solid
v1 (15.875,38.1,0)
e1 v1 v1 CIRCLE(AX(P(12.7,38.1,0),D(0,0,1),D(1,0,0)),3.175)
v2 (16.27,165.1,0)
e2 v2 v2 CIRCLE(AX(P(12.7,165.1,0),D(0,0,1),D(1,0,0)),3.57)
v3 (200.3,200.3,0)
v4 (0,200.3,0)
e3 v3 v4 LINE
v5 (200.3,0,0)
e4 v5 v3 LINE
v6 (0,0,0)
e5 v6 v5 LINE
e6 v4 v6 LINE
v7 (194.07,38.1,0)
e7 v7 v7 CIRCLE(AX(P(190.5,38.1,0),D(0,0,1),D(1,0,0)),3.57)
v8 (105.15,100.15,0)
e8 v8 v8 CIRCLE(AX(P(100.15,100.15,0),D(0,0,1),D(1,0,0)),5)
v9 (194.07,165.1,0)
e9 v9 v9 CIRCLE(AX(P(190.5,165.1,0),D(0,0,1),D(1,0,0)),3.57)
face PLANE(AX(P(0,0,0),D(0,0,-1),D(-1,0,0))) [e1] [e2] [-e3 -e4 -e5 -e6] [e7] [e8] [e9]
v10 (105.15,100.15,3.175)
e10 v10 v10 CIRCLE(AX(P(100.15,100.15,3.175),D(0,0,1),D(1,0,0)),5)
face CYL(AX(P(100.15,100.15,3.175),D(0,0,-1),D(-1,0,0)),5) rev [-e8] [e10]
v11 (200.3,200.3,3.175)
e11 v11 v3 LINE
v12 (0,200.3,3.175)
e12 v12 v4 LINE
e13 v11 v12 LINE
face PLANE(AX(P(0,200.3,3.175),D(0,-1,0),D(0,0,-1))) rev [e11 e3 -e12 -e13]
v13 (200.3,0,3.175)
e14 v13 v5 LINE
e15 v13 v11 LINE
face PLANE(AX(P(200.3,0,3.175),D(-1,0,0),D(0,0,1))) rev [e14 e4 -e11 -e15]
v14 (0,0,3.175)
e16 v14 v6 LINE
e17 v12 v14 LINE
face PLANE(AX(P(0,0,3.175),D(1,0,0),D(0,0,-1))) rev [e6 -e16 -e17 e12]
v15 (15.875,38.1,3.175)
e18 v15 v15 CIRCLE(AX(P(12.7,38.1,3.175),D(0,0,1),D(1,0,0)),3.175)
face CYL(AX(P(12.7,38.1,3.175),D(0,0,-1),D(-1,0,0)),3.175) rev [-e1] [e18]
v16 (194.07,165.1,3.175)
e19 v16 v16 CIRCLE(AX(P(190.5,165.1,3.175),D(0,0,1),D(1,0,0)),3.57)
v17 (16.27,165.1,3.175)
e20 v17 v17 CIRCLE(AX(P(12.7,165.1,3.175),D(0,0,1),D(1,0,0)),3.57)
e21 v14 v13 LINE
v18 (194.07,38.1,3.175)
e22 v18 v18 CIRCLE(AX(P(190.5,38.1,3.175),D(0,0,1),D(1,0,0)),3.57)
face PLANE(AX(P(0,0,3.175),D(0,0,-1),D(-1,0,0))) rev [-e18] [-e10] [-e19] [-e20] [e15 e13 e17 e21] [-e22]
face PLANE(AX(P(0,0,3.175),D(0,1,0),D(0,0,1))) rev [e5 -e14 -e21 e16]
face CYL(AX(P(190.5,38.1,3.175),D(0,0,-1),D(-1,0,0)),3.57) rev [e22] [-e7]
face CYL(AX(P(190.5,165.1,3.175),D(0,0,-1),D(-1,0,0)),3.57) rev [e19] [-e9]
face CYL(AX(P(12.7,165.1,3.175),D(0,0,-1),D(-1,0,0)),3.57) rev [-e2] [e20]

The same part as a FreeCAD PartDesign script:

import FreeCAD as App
import Part
import Sketcher

doc = App.newDocument("Part")
body = doc.addObject("PartDesign::Body", "Body")

sketch1 = body.newObject("Sketcher::SketchObject", "Sketch")
sketch1.AttachmentSupport = (doc.getObject("XY_Plane"), [""])
sketch1.MapMode = "FlatFace"
sketch1.addGeometry([
    Part.LineSegment(App.Vector(0, 200.3, 0), App.Vector(0, 0, 0)),
    Part.LineSegment(App.Vector(0, 0, 0), App.Vector(200.3, 0, 0)),
    Part.LineSegment(App.Vector(200.3, 0, 0), App.Vector(200.3, 200.3, 0)),
    Part.LineSegment(App.Vector(200.3, 200.3, 0), App.Vector(0, 200.3, 0)),
    Part.Circle(App.Vector(12.7, 38.1, 0), App.Vector(0, 0, 1), 3.2),
    Part.Circle(App.Vector(100.2, 100.2, 0), App.Vector(0, 0, 1), 5),
    Part.Circle(App.Vector(190.5, 38.1, 0), App.Vector(0, 0, 1), 3.6),
    Part.Circle(App.Vector(12.7, 165.1, 0), App.Vector(0, 0, 1), 3.6),
    Part.Circle(App.Vector(190.5, 165.1, 0), App.Vector(0, 0, 1), 3.6),
], False)
sketch1.addConstraint([
    Sketcher.Constraint("Coincident", 0, 2, 1, 1),
    Sketcher.Constraint("Coincident", 1, 2, 2, 1),
    Sketcher.Constraint("Coincident", 2, 2, 3, 1),
    Sketcher.Constraint("Coincident", 3, 2, 0, 1),
    Sketcher.Constraint("Vertical", 0),
    Sketcher.Constraint("Horizontal", 1),
    Sketcher.Constraint("Vertical", 2),
    Sketcher.Constraint("Horizontal", 3),
    Sketcher.Constraint("Coincident", 0, 2, -1, 1),
    Sketcher.Constraint("Equal", 6, 7),
    Sketcher.Constraint("Equal", 7, 8),
    Sketcher.Constraint("Horizontal", 4, 3, 6, 3),
    Sketcher.Constraint("Horizontal", 7, 3, 8, 3),
    Sketcher.Constraint("Vertical", 4, 3, 7, 3),
    Sketcher.Constraint("Vertical", 6, 3, 8, 3),
    Sketcher.Constraint("Equal", 3, 0),
    Sketcher.Constraint("Diameter", 5, 10.0),
    Sketcher.Constraint("Diameter", 4, 6.35),
    Sketcher.Constraint("Diameter", 6, 7.14),
    Sketcher.Constraint("DistanceX", 1, 1, 1, 2, 200.3),
    Sketcher.Constraint("DistanceY", 4, 3, 7, 3, 127.0),
    Sketcher.Constraint("DistanceX", -1, 1, 4, 3, 12.7),
    Sketcher.Constraint("DistanceY", -1, 1, 4, 3, 38.1),
    Sketcher.Constraint("DistanceX", -1, 1, 6, 3, 190.5),
    Sketcher.Constraint("DistanceX", -1, 1, 5, 3, 100.15),
    Sketcher.Constraint("DistanceY", -1, 1, 5, 3, 100.15),
])
pad1 = body.newObject("PartDesign::Pad", "Pad")
pad1.Profile = sketch1
pad1.Length = 3.175

doc.recompute()
